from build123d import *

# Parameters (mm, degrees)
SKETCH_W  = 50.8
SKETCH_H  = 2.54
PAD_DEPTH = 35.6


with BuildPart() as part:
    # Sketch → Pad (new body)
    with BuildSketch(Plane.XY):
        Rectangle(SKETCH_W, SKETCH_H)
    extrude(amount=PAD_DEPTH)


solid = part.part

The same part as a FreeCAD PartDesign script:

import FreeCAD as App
import Part
import Sketcher
Q = App.Units.Quantity


def add_polygon(sketch, points):
    """Adds a closed chain of lines whose ends are joined by coincident constraints."""
    first, n = sketch.GeometryCount, len(points)
    for a, b in zip(points, points[1:] + points[:1]):
        sketch.addGeometry(Part.LineSegment(App.Vector(*a, 0), App.Vector(*b, 0)), False)
    for i in range(n):
        sketch.addConstraint(Sketcher.Constraint("Coincident", first + i, 2, first + (i + 1) % n, 1))

doc = App.newDocument("Part")
body = doc.addObject("PartDesign::Body", "Body")

# Sketch on XY plane
sketch1 = doc.addObject("Sketcher::SketchObject", "Sketch")
body.addObject(sketch1)
sketch1.AttachmentSupport = (doc.XY_Plane, [""])
sketch1.MapMode = "FlatFace"
add_polygon(sketch1, [(-25.4, 1.3), (-25.4, -1.3), (25.4, -1.3), (25.4, 1.3)])  # lines 0-3
sketch1.addConstraint(Sketcher.Constraint("Vertical", 0))
sketch1.addConstraint(Sketcher.Constraint("Horizontal", 1))
sketch1.addConstraint(Sketcher.Constraint("Vertical", 2))
sketch1.addConstraint(Sketcher.Constraint("Horizontal", 3))
sketch1.addConstraint(Sketcher.Constraint("Symmetric", 0, 2, 2, 2, -1, 1))
sketch1.addConstraint(Sketcher.Constraint("DistanceX", 1, 1, 1, 2, Q("2 in")))
sketch1.addConstraint(Sketcher.Constraint("DistanceY", 0, 2, 0, 1, Q("0.1 in")))
pad1 = doc.addObject("PartDesign::Pad", "Pad")
body.addObject(pad1)
pad1.Profile = sketch1
pad1.Length = 35.6

doc.recompute()
